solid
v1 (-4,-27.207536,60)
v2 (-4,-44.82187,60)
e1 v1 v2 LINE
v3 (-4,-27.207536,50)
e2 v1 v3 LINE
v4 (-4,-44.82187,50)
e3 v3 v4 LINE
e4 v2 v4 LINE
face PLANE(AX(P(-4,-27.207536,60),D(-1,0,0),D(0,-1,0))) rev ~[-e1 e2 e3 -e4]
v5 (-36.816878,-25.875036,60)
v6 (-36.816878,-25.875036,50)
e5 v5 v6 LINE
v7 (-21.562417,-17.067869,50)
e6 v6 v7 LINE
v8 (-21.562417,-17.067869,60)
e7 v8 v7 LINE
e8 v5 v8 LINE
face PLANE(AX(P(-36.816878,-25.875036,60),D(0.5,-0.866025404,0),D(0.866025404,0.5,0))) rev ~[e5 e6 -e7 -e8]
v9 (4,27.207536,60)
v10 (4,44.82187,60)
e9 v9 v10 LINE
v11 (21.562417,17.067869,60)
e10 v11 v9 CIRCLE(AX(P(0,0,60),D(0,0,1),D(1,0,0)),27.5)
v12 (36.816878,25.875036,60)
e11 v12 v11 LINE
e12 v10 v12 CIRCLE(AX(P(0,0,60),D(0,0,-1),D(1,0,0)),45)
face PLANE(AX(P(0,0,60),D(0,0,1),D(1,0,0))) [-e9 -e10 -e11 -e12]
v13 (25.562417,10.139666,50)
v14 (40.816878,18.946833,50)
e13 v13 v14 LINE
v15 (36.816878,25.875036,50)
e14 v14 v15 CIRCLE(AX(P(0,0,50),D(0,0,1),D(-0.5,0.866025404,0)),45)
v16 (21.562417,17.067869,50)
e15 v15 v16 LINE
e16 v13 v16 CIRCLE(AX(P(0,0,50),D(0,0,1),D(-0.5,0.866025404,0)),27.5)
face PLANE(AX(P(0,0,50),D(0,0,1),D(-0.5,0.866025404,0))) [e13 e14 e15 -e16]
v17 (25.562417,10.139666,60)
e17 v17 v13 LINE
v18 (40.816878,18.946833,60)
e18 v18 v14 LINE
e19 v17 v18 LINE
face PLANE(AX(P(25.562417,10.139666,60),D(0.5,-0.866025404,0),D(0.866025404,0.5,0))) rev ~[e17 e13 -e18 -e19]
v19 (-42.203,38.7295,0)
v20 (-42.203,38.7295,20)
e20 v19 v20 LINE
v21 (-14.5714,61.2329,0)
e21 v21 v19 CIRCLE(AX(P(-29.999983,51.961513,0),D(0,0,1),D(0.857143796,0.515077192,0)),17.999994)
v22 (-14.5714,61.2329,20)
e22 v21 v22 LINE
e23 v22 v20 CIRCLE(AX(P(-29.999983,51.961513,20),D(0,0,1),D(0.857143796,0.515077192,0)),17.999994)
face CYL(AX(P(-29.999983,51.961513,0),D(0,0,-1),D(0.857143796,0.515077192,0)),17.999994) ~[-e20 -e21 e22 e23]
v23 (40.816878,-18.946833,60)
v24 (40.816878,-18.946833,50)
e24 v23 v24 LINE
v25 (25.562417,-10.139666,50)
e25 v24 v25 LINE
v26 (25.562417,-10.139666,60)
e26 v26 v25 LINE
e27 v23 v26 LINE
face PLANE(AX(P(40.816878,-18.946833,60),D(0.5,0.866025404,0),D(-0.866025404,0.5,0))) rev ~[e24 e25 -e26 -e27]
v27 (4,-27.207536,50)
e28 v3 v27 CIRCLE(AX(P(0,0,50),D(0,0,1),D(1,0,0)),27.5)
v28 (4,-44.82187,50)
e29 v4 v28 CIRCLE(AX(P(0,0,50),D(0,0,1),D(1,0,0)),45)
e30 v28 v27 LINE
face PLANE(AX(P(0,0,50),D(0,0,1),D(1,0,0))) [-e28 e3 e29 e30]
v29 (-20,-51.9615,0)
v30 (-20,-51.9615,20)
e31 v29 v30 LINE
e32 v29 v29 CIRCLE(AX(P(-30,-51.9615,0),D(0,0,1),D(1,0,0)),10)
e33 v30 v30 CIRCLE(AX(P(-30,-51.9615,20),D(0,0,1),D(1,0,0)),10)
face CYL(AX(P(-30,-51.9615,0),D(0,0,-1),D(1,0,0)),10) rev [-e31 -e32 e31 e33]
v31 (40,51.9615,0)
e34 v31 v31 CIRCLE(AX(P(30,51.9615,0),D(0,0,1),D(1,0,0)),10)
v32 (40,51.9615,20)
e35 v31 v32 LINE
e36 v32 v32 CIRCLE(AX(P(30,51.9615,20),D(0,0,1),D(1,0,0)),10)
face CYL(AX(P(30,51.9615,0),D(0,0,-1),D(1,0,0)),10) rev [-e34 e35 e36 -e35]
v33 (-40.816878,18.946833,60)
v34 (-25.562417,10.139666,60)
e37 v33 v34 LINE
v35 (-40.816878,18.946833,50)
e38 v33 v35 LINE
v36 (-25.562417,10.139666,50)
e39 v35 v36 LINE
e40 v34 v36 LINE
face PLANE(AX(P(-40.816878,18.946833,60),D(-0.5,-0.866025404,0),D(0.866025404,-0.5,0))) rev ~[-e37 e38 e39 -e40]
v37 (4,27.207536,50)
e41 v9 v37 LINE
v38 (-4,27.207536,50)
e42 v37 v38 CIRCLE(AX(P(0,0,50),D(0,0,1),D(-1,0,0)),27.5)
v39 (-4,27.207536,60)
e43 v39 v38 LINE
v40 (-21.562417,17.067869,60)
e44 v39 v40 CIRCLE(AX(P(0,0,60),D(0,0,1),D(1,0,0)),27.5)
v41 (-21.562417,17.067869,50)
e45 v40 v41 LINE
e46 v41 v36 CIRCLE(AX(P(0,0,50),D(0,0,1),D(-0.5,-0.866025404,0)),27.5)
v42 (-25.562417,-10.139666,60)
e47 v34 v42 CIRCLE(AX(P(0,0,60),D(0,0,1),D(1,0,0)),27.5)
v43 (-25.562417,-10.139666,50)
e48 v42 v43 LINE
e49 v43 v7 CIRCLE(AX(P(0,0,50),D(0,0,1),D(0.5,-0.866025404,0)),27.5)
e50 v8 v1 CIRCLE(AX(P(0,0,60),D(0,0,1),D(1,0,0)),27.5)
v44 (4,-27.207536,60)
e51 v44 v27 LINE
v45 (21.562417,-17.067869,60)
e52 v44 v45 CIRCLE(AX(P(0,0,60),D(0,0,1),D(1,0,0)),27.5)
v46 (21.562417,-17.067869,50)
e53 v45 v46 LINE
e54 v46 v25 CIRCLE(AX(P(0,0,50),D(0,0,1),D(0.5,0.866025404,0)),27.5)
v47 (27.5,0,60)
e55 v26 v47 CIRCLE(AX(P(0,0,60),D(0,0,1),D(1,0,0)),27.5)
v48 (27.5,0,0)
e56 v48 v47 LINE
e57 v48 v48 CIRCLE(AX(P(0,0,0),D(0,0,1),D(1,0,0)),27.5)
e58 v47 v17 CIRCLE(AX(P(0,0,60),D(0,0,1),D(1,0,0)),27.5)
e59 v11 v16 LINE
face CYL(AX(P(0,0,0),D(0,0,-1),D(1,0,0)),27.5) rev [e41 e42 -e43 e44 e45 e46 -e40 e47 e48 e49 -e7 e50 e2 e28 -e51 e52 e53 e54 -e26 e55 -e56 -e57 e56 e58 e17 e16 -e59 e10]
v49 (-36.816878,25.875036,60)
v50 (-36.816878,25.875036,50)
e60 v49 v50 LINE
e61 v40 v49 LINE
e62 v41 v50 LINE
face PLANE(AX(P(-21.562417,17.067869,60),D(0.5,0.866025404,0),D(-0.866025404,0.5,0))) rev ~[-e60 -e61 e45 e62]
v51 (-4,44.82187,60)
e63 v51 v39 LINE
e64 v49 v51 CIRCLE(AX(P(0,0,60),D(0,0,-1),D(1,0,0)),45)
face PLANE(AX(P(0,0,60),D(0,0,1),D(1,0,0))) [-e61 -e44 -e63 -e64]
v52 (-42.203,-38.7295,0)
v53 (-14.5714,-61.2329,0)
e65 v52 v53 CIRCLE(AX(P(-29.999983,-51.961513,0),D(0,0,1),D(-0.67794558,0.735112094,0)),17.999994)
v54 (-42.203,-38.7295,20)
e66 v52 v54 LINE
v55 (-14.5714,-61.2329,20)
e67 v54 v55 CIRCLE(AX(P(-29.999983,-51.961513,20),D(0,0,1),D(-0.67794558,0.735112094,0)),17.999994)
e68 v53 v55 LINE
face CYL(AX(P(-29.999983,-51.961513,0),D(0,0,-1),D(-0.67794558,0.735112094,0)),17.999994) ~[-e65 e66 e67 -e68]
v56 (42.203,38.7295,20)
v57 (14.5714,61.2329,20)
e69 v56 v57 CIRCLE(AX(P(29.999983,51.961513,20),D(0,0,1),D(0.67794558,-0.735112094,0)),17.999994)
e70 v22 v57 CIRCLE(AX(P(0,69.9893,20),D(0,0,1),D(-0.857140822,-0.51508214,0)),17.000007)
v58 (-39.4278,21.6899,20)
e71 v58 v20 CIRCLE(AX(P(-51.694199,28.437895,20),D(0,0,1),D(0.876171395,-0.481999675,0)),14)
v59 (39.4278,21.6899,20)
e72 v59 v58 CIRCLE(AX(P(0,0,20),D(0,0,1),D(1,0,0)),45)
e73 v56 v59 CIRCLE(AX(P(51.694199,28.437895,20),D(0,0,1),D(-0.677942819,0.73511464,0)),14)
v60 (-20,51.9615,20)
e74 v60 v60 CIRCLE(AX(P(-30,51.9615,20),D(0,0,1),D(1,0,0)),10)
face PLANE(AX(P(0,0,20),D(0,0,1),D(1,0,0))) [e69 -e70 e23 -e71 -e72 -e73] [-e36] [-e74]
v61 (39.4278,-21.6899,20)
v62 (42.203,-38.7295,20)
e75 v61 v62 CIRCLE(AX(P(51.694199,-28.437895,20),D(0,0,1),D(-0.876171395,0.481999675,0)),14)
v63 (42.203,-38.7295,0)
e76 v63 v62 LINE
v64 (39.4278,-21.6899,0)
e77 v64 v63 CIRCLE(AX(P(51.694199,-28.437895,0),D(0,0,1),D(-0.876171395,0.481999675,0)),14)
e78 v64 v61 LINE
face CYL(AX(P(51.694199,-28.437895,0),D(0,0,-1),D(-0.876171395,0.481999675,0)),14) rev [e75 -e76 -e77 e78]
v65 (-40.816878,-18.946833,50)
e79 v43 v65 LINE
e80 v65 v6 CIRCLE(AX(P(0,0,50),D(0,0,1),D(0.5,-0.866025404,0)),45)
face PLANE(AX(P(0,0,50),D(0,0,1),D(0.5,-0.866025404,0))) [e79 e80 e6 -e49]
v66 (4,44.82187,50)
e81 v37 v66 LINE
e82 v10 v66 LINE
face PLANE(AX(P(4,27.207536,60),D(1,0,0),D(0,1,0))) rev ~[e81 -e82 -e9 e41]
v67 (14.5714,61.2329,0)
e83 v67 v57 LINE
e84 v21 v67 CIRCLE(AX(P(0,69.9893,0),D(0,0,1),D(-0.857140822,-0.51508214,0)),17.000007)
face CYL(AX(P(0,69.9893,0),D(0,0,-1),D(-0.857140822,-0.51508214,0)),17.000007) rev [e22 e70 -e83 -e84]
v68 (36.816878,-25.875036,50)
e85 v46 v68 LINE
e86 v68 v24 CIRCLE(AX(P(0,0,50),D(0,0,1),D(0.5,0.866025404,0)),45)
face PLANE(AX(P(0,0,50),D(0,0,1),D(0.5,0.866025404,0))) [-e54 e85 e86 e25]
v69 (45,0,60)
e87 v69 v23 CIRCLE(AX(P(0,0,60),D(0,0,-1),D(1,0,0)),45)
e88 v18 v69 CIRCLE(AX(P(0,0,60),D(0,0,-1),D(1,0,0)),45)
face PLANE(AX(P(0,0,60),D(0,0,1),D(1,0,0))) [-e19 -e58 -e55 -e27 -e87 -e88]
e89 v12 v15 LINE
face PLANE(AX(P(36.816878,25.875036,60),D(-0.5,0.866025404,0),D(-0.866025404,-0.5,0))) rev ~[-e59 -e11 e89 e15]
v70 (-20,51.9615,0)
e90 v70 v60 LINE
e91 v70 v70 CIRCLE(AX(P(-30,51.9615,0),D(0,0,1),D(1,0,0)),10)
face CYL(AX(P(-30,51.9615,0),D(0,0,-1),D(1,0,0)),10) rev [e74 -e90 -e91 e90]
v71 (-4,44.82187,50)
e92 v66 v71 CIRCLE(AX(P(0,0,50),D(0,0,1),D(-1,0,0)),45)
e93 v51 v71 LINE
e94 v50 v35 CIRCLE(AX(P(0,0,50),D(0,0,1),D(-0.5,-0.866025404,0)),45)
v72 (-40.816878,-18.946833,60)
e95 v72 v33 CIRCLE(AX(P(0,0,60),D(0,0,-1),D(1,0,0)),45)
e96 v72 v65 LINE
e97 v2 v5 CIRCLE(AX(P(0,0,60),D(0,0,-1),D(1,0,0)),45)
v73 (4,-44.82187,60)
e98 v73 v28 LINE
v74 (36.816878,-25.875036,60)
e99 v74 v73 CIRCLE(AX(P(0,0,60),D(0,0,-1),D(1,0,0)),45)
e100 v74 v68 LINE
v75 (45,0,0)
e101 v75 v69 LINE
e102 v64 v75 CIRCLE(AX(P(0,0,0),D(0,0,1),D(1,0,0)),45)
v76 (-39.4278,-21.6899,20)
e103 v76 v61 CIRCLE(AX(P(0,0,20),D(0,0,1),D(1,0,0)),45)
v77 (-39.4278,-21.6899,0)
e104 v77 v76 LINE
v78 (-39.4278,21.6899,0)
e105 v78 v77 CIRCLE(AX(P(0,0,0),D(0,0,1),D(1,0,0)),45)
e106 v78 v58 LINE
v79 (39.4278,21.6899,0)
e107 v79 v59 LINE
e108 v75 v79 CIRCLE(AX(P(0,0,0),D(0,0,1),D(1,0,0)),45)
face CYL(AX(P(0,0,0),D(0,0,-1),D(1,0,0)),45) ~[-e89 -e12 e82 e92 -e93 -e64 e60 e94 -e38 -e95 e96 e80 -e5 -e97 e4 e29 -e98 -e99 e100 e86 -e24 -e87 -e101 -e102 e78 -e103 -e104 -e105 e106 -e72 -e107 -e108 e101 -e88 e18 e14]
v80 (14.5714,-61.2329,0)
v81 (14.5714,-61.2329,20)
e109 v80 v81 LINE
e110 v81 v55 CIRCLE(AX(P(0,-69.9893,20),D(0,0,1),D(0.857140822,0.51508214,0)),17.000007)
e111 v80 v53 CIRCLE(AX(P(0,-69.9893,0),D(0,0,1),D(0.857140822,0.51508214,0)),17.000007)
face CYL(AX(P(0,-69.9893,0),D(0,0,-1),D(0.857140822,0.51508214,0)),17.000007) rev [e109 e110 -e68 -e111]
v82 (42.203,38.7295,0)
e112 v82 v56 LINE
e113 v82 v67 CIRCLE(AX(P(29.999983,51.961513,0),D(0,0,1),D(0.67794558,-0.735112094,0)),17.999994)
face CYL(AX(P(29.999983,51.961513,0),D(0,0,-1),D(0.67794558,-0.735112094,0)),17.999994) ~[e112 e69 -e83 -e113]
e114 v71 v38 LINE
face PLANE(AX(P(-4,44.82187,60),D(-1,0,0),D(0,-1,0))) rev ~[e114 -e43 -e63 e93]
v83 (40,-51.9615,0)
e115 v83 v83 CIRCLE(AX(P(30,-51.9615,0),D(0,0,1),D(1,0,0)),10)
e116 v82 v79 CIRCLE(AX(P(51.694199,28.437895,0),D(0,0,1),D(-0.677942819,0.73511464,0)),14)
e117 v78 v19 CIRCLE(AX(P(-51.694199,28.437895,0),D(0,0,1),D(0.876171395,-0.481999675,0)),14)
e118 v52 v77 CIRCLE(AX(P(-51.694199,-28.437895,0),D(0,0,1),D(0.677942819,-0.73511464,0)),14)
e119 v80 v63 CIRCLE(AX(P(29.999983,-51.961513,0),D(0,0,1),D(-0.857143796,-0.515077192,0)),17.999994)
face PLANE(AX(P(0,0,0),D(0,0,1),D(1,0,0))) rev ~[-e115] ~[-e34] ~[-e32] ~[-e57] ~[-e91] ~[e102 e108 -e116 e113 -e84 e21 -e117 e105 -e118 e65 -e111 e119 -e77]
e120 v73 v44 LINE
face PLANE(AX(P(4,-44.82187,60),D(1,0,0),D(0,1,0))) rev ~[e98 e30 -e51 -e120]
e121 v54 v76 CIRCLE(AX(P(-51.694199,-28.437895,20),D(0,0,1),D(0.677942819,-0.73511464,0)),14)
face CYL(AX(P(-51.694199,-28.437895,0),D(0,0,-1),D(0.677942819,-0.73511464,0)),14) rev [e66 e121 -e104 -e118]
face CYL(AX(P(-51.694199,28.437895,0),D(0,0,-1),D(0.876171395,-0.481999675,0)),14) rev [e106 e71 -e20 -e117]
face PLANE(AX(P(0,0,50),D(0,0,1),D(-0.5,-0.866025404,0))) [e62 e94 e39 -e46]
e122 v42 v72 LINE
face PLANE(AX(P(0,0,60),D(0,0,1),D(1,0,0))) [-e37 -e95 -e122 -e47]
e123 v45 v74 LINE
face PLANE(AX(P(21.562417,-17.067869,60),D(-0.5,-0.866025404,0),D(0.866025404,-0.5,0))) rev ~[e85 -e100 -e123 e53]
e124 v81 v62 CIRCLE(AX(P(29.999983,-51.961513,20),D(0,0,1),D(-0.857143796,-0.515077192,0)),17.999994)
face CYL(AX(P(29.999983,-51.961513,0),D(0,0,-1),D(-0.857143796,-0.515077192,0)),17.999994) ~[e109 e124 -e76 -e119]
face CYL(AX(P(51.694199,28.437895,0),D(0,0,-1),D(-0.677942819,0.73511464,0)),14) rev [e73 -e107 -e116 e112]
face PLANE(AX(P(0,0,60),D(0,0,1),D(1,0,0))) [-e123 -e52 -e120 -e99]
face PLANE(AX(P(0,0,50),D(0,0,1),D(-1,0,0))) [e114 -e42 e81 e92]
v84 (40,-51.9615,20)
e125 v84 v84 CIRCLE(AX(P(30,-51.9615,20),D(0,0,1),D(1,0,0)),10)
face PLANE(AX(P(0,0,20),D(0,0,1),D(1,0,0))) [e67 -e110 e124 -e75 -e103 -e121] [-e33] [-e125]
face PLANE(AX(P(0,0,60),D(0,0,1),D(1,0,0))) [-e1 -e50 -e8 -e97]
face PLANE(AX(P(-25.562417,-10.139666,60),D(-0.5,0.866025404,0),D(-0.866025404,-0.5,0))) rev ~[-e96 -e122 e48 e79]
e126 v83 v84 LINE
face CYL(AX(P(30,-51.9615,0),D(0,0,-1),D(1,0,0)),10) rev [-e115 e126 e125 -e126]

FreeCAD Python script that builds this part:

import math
import FreeCAD as App
import Part
import Sketcher

doc = App.newDocument("Part")
body = doc.addObject("PartDesign::Body", "Body")
body.AllowCompound = True

# Sketch on XY plane
sketch1 = body.newObject("Sketcher::SketchObject", "Sketch")
sketch1.AttachmentSupport = (doc.getObject("XY_Plane"), [""])
sketch1.MapMode = "FlatFace"
sketch1.addGeometry(Part.ArcOfCircle(Part.Circle(App.Vector(0, 0, 0), App.Vector(0, 0, 1), 45), math.radians(28.815937), math.radians(151.184063)), False)
sketch1.addGeometry(Part.ArcOfCircle(Part.Circle(App.Vector(51.6942, 28.4379, 0), App.Vector(0, 0, 1), 13.999997), math.radians(132.683111), math.radians(208.816101)), False)
sketch1.addGeometry(Part.ArcOfCircle(Part.Circle(App.Vector(30, 51.9615, 0), App.Vector(0, 0, 1), 17.999973), math.radians(-47.316698), math.radians(148.997376)), False)
sketch1.addGeometry(Part.ArcOfCircle(Part.Circle(App.Vector(0, 69.9893, 0), App.Vector(0, 0, 1), 17.000007), math.radians(-148.997055), math.radians(-31.002945)), False)
sketch1.addGeometry(Part.ArcOfCircle(Part.Circle(App.Vector(-30, 51.9615, 0), App.Vector(0, 0, 1), 18.000015), math.radians(31.002624), math.radians(227.316698)), False)
sketch1.addGeometry(Part.ArcOfCircle(Part.Circle(App.Vector(-51.6942, 28.4379, 0), App.Vector(0, 0, 1), 14.000003), math.radians(-28.816101), math.radians(47.316889)), False)
sketch1.addGeometry(Part.Circle(App.Vector(-30, 51.9615, 0), App.Vector(0, 0, 1), 10), False)
sketch1.addGeometry(Part.Circle(App.Vector(30, 51.9615, 0), App.Vector(0, 0, 1), 10), False)
sketch1.addGeometry(Part.ArcOfCircle(Part.Circle(App.Vector(51.6942, -28.4379, 0), App.Vector(0, 0, 1), 14.000003), math.radians(151.183899), math.radians(227.316889)), False)
sketch1.addGeometry(Part.ArcOfCircle(Part.Circle(App.Vector(0, 0, 0), App.Vector(0, 0, 1), 45), math.radians(-151.184063), math.radians(-28.815937)), False)
sketch1.addGeometry(Part.ArcOfCircle(Part.Circle(App.Vector(-51.6942, -28.4379, 0), App.Vector(0, 0, 1), 13.999997), math.radians(-47.316889), math.radians(28.816101)), False)
sketch1.addGeometry(Part.ArcOfCircle(Part.Circle(App.Vector(-30, -51.9615, 0), App.Vector(0, 0, 1), 17.999973), math.radians(132.683302), math.radians(328.997376)), False)
sketch1.addGeometry(Part.ArcOfCircle(Part.Circle(App.Vector(0, -69.9893, 0), App.Vector(0, 0, 1), 17.000007), math.radians(31.002945), math.radians(148.997055)), False)
sketch1.addGeometry(Part.ArcOfCircle(Part.Circle(App.Vector(30, -51.9615, 0), App.Vector(0, 0, 1), 18.000015), math.radians(-148.997376), math.radians(47.316698)), False)
sketch1.addGeometry(Part.Circle(App.Vector(-30, -51.9615, 0), App.Vector(0, 0, 1), 10), False)
sketch1.addGeometry(Part.Circle(App.Vector(30, -51.9615, 0), App.Vector(0, 0, 1), 10), False)
sketch1.addConstraint(Sketcher.Constraint("Tangent", 0, 1, 1, 2))
sketch1.addConstraint(Sketcher.Constraint("Tangent", 1, 1, 2, 1))
sketch1.addConstraint(Sketcher.Constraint("Tangent", 2, 2, 3, 2))
sketch1.addConstraint(Sketcher.Constraint("Tangent", 3, 1, 4, 1))
sketch1.addConstraint(Sketcher.Constraint("Tangent", 4, 2, 5, 2))
sketch1.addConstraint(Sketcher.Constraint("Tangent", 5, 1, 0, 2))
sketch1.addConstraint(Sketcher.Constraint("Tangent", 8, 1, 9, 2))
sketch1.addConstraint(Sketcher.Constraint("Tangent", 9, 1, 10, 2))
sketch1.addConstraint(Sketcher.Constraint("Tangent", 10, 1, 11, 1))
sketch1.addConstraint(Sketcher.Constraint("Tangent", 11, 2, 12, 2))
sketch1.addConstraint(Sketcher.Constraint("Tangent", 12, 1, 13, 1))
sketch1.addConstraint(Sketcher.Constraint("Tangent", 13, 2, 8, 2))
sketch1.addConstraint(Sketcher.Constraint("Coincident", 0, 3, -1, 1))
sketch1.addConstraint(Sketcher.Constraint("Coincident", 9, 3, -1, 1))
sketch1.addConstraint(Sketcher.Constraint("Coincident", 6, 3, 4, 3))
sketch1.addConstraint(Sketcher.Constraint("Coincident", 7, 3, 2, 3))
sketch1.addConstraint(Sketcher.Constraint("Coincident", 14, 3, 11, 3))
sketch1.addConstraint(Sketcher.Constraint("Coincident", 15, 3, 13, 3))
sketch1.addConstraint(Sketcher.Constraint("Equal", 2, 4))
sketch1.addConstraint(Sketcher.Constraint("Equal", 1, 5))
sketch1.addConstraint(Sketcher.Constraint("Equal", 6, 7))
sketch1.addConstraint(Sketcher.Constraint("Equal", 5, 8))
sketch1.addConstraint(Sketcher.Constraint("Equal", 0, 9))
sketch1.addConstraint(Sketcher.Constraint("Equal", 8, 10))
sketch1.addConstraint(Sketcher.Constraint("Equal", 4, 11))
sketch1.addConstraint(Sketcher.Constraint("Equal", 3, 12))
sketch1.addConstraint(Sketcher.Constraint("Equal", 11, 13))
sketch1.addConstraint(Sketcher.Constraint("Equal", 7, 14))
sketch1.addConstraint(Sketcher.Constraint("Equal", 14, 15))
sketch1.addConstraint(Sketcher.Constraint("Symmetric", 2, 3, 11, 3, -1, 1))
sketch1.addConstraint(Sketcher.Constraint("Symmetric", 4, 3, 13, 3, -1, 1))
sketch1.addConstraint(Sketcher.Constraint("Symmetric", 2, 3, 4, 3, -2))
sketch1.addConstraint(Sketcher.Constraint("Diameter", 6, 20.0))
sketch1.addConstraint(Sketcher.Constraint("Radius", 0, 45.0))
sketch1.addConstraint(Sketcher.Constraint("Radius", 1, 14.0))
sketch1.addConstraint(Sketcher.Constraint("Radius", 2, 18.0))
sketch1.addConstraint(Sketcher.Constraint("Radius", 3, 17.0))
sketch1.addConstraint(Sketcher.Constraint("DistanceX", -1, 1, 2, 3, 30.0))
sketch1.addConstraint(Sketcher.Constraint("DistanceY", -1, 1, 0, 1, 21.69))
pad1 = body.newObject("PartDesign::Pad", "Pad")
pad1.Profile = sketch1
pad1.Length = 20

# Sketch on XY plane
sketch2 = body.newObject("Sketcher::SketchObject", "Sketch001")
sketch2.AttachmentSupport = (doc.getObject("XY_Plane"), [""])
sketch2.MapMode = "FlatFace"
sketch2.addGeometry(Part.Circle(App.Vector(0, 0, 0), App.Vector(0, 0, 1), 45), False)
sketch2.addGeometry(Part.Circle(App.Vector(0, 0, 0), App.Vector(0, 0, 1), 27.5), False)
sketch2.addConstraint(Sketcher.Constraint("Coincident", 0, 3, -1, 1))
sketch2.addConstraint(Sketcher.Constraint("Coincident", 1, 3, -1, 1))
sketch2.addConstraint(Sketcher.Constraint("Diameter", 0, 90.0))
sketch2.addConstraint(Sketcher.Constraint("Diameter", 1, 55.0))
pad2 = body.newObject("PartDesign::Pad", "Pad001")
pad2.Profile = sketch2
pad2.Length = 60

# Sketch on XY plane
sketch3 = body.newObject("Sketcher::SketchObject", "Sketch002")
sketch3.AttachmentSupport = (doc.getObject("XY_Plane"), [""])
sketch3.MapMode = "FlatFace"
sketch3.AttachmentOffset = App.Placement(App.Vector(0, 0, 60), App.Rotation())
sketch3.addGeometry(Part.ArcOfCircle(Part.Circle(App.Vector(0, 0, 0), App.Vector(0, 0, 1), 27.5), math.radians(81.636398), math.radians(98.363602)), False)
sketch3.addGeometry(Part.LineSegment(App.Vector(4, 27.207536, 0), App.Vector(4, 44.82187, 0)), False)
sketch3.addGeometry(Part.ArcOfCircle(Part.Circle(App.Vector(0, 0, 0), App.Vector(0, 0, 1), 45), math.radians(84.900311), math.radians(95.099689)), False)
sketch3.addGeometry(Part.LineSegment(App.Vector(-4, 44.82187, 0), App.Vector(-4, 27.207536, 0)), False)
sketch3.addConstraint(Sketcher.Constraint("Coincident", 0, 1, 1, 1))
sketch3.addConstraint(Sketcher.Constraint("Coincident", 1, 2, 2, 1))
sketch3.addConstraint(Sketcher.Constraint("Coincident", 2, 2, 3, 1))
sketch3.addConstraint(Sketcher.Constraint("Coincident", 3, 2, 0, 2))
sketch3.addConstraint(Sketcher.Constraint("Vertical", 1))
sketch3.addConstraint(Sketcher.Constraint("Vertical", 3))
sketch3.addConstraint(Sketcher.Constraint("Coincident", 0, 3, -1, 1))
sketch3.addConstraint(Sketcher.Constraint("Coincident", 2, 3, -1, 1))
sketch3.addConstraint(Sketcher.Constraint("Horizontal", 1, 2, 2, 2))
sketch3.addConstraint(Sketcher.Constraint("Radius", 2, 45.0))
sketch3.addConstraint(Sketcher.Constraint("DistanceX", 2, 2, 1, 2, 8.0))
sketch3.addConstraint(Sketcher.Constraint("Radius", 0, 27.5))
pocket1 = body.newObject("PartDesign::Pocket", "Pocket")
pocket1.Profile = sketch3
pocket1.Length = 10
doc.recompute()

polarpattern = body.newObject("PartDesign::PolarPattern", "PolarPattern")
polarpattern.Originals = [pocket1]
polarpattern.Axis = (doc.getObject("Z_Axis"), [""])
polarpattern.Angle = 360
polarpattern.Occurrences = 6
body.Tip = polarpattern

doc.recompute()
